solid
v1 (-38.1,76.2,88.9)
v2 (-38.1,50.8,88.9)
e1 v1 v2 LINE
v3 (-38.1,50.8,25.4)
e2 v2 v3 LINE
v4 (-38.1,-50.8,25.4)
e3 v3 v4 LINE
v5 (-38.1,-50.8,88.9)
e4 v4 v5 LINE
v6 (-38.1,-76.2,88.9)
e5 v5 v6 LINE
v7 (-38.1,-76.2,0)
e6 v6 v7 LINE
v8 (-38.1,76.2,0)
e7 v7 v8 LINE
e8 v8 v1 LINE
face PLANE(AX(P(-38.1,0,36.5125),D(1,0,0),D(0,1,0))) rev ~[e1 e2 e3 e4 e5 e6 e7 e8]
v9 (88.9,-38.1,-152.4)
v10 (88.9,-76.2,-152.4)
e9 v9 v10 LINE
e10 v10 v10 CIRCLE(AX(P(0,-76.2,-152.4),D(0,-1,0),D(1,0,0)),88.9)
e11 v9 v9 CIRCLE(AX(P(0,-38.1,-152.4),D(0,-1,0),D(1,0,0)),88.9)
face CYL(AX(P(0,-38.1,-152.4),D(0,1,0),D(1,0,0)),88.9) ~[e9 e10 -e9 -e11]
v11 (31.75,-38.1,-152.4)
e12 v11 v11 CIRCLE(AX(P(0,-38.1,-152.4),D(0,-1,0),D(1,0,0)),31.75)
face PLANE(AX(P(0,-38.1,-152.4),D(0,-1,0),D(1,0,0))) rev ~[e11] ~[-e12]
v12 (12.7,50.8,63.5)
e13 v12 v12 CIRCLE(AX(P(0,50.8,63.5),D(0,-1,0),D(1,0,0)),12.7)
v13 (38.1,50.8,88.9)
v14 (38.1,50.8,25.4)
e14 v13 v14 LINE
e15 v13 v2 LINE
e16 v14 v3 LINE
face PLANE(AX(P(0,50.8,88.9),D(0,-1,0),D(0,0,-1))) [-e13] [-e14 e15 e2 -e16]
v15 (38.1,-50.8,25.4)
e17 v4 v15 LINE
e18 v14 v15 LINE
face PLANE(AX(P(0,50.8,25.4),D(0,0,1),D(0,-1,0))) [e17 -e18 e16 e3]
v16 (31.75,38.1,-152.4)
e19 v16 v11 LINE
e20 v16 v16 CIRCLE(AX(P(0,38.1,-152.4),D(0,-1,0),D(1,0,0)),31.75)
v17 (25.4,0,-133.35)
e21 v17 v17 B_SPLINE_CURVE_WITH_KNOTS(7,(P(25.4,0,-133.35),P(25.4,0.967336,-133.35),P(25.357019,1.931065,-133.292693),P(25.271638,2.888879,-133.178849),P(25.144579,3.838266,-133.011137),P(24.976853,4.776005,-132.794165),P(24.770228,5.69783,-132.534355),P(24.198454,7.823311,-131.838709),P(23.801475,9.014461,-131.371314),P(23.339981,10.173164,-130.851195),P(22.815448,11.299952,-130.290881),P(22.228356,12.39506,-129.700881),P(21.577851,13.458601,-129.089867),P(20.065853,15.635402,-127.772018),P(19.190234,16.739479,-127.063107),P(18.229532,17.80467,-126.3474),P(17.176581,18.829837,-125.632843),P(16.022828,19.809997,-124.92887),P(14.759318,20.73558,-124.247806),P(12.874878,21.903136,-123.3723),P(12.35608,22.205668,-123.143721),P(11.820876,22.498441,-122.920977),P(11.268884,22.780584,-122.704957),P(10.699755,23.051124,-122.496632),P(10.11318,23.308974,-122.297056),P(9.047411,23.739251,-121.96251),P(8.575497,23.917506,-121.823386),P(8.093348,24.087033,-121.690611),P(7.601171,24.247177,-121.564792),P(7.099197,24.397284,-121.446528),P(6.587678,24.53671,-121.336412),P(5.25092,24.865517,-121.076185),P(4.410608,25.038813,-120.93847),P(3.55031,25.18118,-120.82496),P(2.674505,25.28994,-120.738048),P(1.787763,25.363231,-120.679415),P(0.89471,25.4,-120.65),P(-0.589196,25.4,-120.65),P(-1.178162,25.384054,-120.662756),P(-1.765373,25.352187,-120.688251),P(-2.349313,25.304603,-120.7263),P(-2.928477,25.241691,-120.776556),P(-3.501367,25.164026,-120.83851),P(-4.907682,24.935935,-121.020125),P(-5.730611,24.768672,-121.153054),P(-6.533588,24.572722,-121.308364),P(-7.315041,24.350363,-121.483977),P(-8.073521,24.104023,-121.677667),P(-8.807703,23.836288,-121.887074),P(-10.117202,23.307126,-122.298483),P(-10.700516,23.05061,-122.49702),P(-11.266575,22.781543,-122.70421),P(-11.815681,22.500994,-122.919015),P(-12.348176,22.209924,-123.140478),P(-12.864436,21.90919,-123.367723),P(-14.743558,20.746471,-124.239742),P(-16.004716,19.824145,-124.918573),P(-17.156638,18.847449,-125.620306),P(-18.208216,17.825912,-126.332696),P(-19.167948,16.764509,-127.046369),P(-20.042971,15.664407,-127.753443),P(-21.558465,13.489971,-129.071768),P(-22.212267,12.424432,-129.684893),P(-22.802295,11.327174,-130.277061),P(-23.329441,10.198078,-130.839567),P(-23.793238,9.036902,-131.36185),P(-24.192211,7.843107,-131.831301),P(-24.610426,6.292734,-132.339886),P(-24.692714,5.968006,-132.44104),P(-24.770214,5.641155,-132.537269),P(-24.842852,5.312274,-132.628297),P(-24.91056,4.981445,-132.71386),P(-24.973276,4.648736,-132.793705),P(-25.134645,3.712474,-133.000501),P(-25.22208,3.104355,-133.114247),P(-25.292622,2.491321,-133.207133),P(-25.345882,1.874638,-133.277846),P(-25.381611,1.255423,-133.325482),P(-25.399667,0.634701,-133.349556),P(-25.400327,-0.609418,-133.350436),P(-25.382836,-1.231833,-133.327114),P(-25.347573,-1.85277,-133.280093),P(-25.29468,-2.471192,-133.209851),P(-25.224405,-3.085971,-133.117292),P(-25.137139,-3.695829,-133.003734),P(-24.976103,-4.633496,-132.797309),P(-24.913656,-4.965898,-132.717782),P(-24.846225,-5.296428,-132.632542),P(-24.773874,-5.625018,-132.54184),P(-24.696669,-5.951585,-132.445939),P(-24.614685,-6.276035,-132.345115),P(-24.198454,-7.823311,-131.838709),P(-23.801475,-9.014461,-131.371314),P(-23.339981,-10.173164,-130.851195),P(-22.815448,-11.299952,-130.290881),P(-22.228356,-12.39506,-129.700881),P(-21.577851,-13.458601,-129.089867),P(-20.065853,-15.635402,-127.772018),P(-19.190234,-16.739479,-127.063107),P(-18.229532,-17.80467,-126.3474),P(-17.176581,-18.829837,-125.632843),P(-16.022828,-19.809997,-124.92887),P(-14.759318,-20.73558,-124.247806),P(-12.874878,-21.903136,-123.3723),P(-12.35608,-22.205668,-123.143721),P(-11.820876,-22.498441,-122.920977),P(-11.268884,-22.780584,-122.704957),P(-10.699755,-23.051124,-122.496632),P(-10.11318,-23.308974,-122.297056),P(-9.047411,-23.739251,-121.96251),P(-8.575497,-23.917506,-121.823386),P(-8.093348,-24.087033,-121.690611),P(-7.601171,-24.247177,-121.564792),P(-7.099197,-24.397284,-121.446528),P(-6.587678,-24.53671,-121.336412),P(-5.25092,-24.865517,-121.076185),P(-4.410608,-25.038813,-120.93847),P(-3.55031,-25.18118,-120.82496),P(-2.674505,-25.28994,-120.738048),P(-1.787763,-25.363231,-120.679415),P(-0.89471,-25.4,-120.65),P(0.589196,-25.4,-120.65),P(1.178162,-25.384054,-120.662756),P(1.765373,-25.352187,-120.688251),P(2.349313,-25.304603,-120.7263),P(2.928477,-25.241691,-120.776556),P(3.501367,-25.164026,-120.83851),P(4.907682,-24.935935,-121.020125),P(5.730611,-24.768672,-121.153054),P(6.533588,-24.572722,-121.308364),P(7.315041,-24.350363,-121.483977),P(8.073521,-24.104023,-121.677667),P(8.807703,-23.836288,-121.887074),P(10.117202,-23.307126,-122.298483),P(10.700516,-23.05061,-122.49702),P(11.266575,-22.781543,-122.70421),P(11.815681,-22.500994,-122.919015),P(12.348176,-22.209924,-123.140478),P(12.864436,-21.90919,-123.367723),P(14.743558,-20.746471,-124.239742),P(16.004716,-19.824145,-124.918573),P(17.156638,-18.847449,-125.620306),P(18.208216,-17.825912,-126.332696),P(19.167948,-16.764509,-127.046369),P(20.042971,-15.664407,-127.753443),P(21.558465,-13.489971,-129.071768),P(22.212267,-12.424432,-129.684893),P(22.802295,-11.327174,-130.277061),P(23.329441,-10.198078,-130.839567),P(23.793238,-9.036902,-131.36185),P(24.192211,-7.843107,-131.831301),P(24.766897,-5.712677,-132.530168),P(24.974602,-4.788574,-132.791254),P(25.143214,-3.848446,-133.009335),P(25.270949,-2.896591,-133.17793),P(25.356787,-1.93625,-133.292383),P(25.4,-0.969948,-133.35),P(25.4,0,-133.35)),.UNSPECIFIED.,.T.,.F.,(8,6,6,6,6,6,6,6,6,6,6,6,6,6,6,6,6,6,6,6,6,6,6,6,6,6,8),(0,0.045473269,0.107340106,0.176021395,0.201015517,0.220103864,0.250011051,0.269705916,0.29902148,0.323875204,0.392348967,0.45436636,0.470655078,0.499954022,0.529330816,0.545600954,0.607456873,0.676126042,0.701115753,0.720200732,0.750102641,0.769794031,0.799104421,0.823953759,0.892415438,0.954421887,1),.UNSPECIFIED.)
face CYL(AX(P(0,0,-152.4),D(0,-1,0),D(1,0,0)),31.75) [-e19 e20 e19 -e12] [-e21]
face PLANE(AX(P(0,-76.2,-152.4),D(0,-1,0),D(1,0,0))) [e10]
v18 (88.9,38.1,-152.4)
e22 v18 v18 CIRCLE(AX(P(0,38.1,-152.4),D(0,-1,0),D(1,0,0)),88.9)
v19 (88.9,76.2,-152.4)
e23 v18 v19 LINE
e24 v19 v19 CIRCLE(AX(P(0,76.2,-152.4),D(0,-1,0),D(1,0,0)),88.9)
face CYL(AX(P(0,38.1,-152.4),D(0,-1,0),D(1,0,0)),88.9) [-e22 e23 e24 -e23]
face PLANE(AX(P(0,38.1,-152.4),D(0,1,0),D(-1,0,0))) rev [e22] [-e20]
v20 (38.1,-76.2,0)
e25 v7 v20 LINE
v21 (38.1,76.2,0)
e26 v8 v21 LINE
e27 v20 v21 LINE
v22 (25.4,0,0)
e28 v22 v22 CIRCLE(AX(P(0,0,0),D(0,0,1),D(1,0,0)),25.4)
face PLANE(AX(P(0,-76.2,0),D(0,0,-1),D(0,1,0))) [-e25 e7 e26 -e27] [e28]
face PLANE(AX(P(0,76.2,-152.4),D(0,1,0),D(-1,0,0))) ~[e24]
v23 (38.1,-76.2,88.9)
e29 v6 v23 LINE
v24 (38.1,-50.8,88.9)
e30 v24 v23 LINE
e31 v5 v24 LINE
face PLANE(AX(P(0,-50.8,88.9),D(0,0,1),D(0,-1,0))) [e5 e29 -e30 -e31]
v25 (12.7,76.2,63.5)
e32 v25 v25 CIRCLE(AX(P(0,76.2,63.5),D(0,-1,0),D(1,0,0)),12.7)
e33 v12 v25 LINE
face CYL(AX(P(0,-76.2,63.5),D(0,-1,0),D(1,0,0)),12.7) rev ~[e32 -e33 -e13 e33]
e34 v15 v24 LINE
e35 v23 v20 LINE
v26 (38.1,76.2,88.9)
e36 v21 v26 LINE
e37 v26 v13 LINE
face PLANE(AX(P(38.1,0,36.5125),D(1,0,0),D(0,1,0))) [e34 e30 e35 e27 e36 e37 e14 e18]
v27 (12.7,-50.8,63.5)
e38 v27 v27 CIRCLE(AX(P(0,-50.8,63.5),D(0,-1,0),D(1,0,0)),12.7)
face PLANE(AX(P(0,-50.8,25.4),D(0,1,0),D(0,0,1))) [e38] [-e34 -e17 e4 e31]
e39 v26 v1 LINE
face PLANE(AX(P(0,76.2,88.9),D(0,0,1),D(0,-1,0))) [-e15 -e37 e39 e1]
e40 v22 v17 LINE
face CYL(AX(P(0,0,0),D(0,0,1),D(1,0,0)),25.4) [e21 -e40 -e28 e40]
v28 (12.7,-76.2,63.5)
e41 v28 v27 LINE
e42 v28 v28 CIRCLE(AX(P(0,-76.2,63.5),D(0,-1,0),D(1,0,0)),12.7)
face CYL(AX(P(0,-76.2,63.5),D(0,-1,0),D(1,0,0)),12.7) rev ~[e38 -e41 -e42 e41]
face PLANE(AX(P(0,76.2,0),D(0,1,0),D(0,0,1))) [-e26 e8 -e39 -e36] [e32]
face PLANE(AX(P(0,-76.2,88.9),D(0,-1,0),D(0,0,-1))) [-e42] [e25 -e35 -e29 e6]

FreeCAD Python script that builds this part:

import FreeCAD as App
import Part
import Sketcher
Q = App.Units.Quantity


def add_polygon(sketch, points):
    """Adds a closed chain of lines whose ends are joined by coincident constraints."""
    first, n = sketch.GeometryCount, len(points)
    for a, b in zip(points, points[1:] + points[:1]):
        sketch.addGeometry(Part.LineSegment(App.Vector(*a, 0), App.Vector(*b, 0)), False)
    for i in range(n):
        sketch.addConstraint(Sketcher.Constraint("Coincident", first + i, 2, first + (i + 1) % n, 1))

doc = App.newDocument("Part")
body = doc.addObject("PartDesign::Body", "Body")

sketch1 = doc.addObject("Sketcher::SketchObject", "Sketch")
body.addObject(sketch1)
sketch1.AttachmentSupport = (doc.XY_Plane, [""])
sketch1.MapMode = "FlatFace"
sketch1.addGeometry(Part.Circle(App.Vector(0, 0, 0), App.Vector(0, 0, 1), 25), False)
sketch1.addConstraint([
    Sketcher.Constraint("Coincident", 0, 3, -1, 1),
    Sketcher.Constraint("Diameter", 0, Q("2 in")),
])
pad1 = doc.addObject("PartDesign::Pad", "Pad")
body.addObject(pad1)
pad1.Profile = sketch1
pad1.Length = Q("6 in")
pad1.Reversed = True

sketch2 = doc.addObject("Sketcher::SketchObject", "Sketch001")
body.addObject(sketch2)
sketch2.AttachmentSupport = (doc.YZ_Plane, [""])
sketch2.MapMode = "FlatFace"
add_polygon(sketch2, [(51, 25), (-51, 25), (-51, 89), (-76, 89), (-76, 0), (76, 0), (76, 89), (51, 89)])
sketch2.addConstraint([
    Sketcher.Constraint("Horizontal", 0),
    Sketcher.Constraint("Vertical", 1),
    Sketcher.Constraint("Horizontal", 2),
    Sketcher.Constraint("Vertical", 3),
    Sketcher.Constraint("Horizontal", 4),
    Sketcher.Constraint("Vertical", 5),
    Sketcher.Constraint("Horizontal", 6),
    Sketcher.Constraint("Vertical", 7),
    Sketcher.Constraint("Symmetric", 3, 2, 4, 2, -1, 1),
    Sketcher.Constraint("Symmetric", 1, 2, 6, 2, -2),
    Sketcher.Constraint("DistanceX", 0, 2, 0, 1, Q("4 in")),
    Sketcher.Constraint("DistanceX", 2, 2, 2, 1, Q("1 in")),
    Sketcher.Constraint("DistanceY", 1, 1, 1, 2, Q("2.5 in")),
    Sketcher.Constraint("DistanceY", 3, 2, 3, 1, Q("3.5 in")),
])
pad2 = doc.addObject("PartDesign::Pad", "Pad001")
body.addObject(pad2)
pad2.Profile = sketch2
pad2.Length = Q("3 in")
pad2.Midplane = True

sketch3 = doc.addObject("Sketcher::SketchObject", "Sketch002")
body.addObject(sketch3)
sketch3.AttachmentSupport = (doc.XZ_Plane, [""])
sketch3.MapMode = "FlatFace"
sketch3.addGeometry(Part.Circle(App.Vector(0, -152, 0), App.Vector(0, 0, 1), 32), False)
sketch3.addConstraint([
    Sketcher.Constraint("PointOnObject", 0, 3, -2),
    Sketcher.Constraint("Diameter", 0, Q("2.5 in")),
    Sketcher.Constraint("DistanceY", 0, 3, -1, 1, Q("6 in")),
])
pad3 = doc.addObject("PartDesign::Pad", "Pad002")
body.addObject(pad3)
pad3.Profile = sketch3
pad3.Length = Q("3 in")
pad3.Midplane = True

sketch4 = doc.addObject("Sketcher::SketchObject", "Sketch003")
body.addObject(sketch4)
sketch4.AttachmentSupport = (doc.XZ_Plane, [""])
sketch4.MapMode = "FlatFace"
sketch4.AttachmentOffset = App.Placement(App.Vector(0, 0, 1.5 * 25.4), App.Rotation())
sketch4.addGeometry(Part.Circle(App.Vector(0, -152, 0), App.Vector(0, 0, 1), 89), False)
sketch4.addConstraint([
    Sketcher.Constraint("PointOnObject", 0, 3, -2),
    Sketcher.Constraint("Diameter", 0, Q("7 in")),
    Sketcher.Constraint("DistanceY", 0, 3, -1, 1, Q("6 in")),
])
pad4 = doc.addObject("PartDesign::Pad", "Pad003")
body.addObject(pad4)
pad4.Profile = sketch4
pad4.Length = Q("1.5 in")
body2 = doc.addObject("PartDesign::Body", "Body001")
doc.recompute()

body2.BaseFeature = body
doc.recompute()

mirroring = doc.addObject("Part::Mirroring", "Mirroring")
mirroring.Source = body
mirroring.Base = App.Vector(0, 0, 0)
mirroring.Normal = App.Vector(0, -1, 0)
body3 = doc.addObject("PartDesign::Body", "Body002")
body3.BaseFeature = mirroring
boolean = doc.addObject("PartDesign::Boolean", "Boolean")
body2.addObject(boolean)
boolean.Type = "Fuse"
boolean.addObjects([body3])
doc.recompute()

sketch5 = doc.addObject("Sketcher::SketchObject", "Sketch004")
body2.addObject(sketch5)
sketch5.AttachmentSupport = (doc.getObject("XZ_Plane001"), [""])
sketch5.MapMode = "FlatFace"
sketch5.AttachmentOffset = App.Placement(App.Vector(0, 0, 3 * 25.4), App.Rotation())
sketch5.addGeometry(Part.Circle(App.Vector(0, 64, 0), App.Vector(0, 0, 1), 13), False)
sketch5.addConstraint([
    Sketcher.Constraint("PointOnObject", 0, 3, -2),
    Sketcher.Constraint("Diameter", 0, Q("1 in")),
    Sketcher.Constraint("DistanceY", -1, 1, 0, 3, Q("2.5 in")),
])
pocket1 = doc.addObject("PartDesign::Pocket", "Pocket")
body2.addObject(pocket1)
pocket1.Profile = sketch5
pocket1.Type = "ThroughAll"
mirroring.Visibility = False

doc.recompute()
